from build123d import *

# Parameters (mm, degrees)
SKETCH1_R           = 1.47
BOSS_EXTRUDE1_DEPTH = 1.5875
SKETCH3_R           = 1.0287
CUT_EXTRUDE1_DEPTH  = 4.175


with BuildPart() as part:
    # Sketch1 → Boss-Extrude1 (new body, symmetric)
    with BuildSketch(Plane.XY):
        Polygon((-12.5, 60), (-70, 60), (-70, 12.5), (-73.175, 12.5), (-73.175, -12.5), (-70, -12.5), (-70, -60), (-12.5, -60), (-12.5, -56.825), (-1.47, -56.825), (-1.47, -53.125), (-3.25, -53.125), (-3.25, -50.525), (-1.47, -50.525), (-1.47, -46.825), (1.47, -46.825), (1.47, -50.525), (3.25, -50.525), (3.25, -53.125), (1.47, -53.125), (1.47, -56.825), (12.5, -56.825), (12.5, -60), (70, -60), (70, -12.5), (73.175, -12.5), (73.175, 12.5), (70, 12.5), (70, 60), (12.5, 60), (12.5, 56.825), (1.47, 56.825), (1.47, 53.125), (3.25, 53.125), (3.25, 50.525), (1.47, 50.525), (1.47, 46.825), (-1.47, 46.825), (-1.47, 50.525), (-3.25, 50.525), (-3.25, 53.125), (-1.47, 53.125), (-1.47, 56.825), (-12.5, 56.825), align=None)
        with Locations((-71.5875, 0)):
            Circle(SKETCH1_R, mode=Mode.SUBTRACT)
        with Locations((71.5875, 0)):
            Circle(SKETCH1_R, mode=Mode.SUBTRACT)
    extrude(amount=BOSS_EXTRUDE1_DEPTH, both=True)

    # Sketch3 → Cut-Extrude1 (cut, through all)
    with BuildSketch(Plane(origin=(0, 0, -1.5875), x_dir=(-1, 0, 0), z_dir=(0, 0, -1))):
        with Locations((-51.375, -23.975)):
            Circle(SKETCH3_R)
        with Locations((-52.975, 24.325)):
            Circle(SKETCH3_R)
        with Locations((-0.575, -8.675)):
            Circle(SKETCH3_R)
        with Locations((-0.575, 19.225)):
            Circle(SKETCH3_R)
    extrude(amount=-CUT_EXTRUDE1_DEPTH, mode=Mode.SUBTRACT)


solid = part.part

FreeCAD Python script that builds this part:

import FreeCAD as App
import Part
import Sketcher
from FreeCAD import Vector
Q = App.Units.Quantity


def add_polygon(sketch, points):
    """Adds a closed chain of lines whose ends are joined by coincident constraints."""
    first, n = sketch.GeometryCount, len(points)
    for a, b in zip(points, points[1:] + points[:1]):
        sketch.addGeometry(Part.LineSegment(App.Vector(*a, 0), App.Vector(*b, 0)), False)
    for i in range(n):
        sketch.addConstraint(Sketcher.Constraint("Coincident", first + i, 2, first + (i + 1) % n, 1))

doc = App.newDocument("Part")
body = doc.addObject("PartDesign::Body", "Body")

# Sketch on XY plane
sketch1 = body.newObject("Sketcher::SketchObject", "Sketch")
sketch1.AttachmentSupport = (doc.getObject("XY_Plane"), [""])
sketch1.MapMode = "FlatFace"
add_polygon(sketch1, [(-12.5, 60), (-70, 60), (-70, 12.5), (-73.175, 12.5), (-73.175, -12.5), (-70, -12.5), (-70, -60), (-12.5, -60), (-12.5, -56.825), (-1.47, -56.825), (-1.47, -53.125), (-3.25, -53.125), (-3.25, -50.525), (-1.47, -50.525), (-1.47, -46.825), (1.47, -46.825), (1.47, -50.525), (3.25, -50.525), (3.25, -53.125), (1.47, -53.125), (1.47, -56.825), (12.5, -56.825), (12.5, -60), (70, -60), (70, -12.5), (73.175, -12.5), (73.175, 12.5), (70, 12.5), (70, 60), (12.5, 60), (12.5, 56.825), (1.47, 56.825), (1.47, 53.125), (3.25, 53.125), (3.25, 50.525), (1.47, 50.525), (1.47, 46.825), (-1.47, 46.825), (-1.47, 50.525), (-3.25, 50.525), (-3.25, 53.125), (-1.47, 53.125), (-1.47, 56.825), (-12.5, 56.825)])  # lines 0-43
sketch1.addGeometry(Part.Circle(Vector(-71.5875, 0, 0), Vector(0, 0, 1), 1.47), False)  # 44
sketch1.addGeometry(Part.Circle(Vector(71.5875, 0, 0), Vector(0, 0, 1), 1.47), False)  # 45
sketch1.addConstraint([
    Sketcher.Constraint("Horizontal", 0),
    Sketcher.Constraint("Vertical", 1),
    Sketcher.Constraint("Horizontal", 2),
    Sketcher.Constraint("Vertical", 3),
    Sketcher.Constraint("Horizontal", 4),
    Sketcher.Constraint("Vertical", 5),
    Sketcher.Constraint("Horizontal", 6),
    Sketcher.Constraint("Vertical", 7),
    Sketcher.Constraint("Horizontal", 8),
    Sketcher.Constraint("Vertical", 9),
    Sketcher.Constraint("Horizontal", 10),
    Sketcher.Constraint("Vertical", 11),
    Sketcher.Constraint("Horizontal", 12),
    Sketcher.Constraint("Vertical", 13),
    Sketcher.Constraint("Horizontal", 14),
    Sketcher.Constraint("Vertical", 15),
    Sketcher.Constraint("Horizontal", 16),
    Sketcher.Constraint("Vertical", 17),
    Sketcher.Constraint("Horizontal", 18),
    Sketcher.Constraint("Vertical", 19),
    Sketcher.Constraint("Horizontal", 20),
    Sketcher.Constraint("Vertical", 21),
    Sketcher.Constraint("Horizontal", 22),
    Sketcher.Constraint("Vertical", 23),
    Sketcher.Constraint("Horizontal", 24),
    Sketcher.Constraint("Vertical", 25),
    Sketcher.Constraint("Horizontal", 26),
    Sketcher.Constraint("Vertical", 27),
    Sketcher.Constraint("Horizontal", 28),
    Sketcher.Constraint("Vertical", 29),
    Sketcher.Constraint("Horizontal", 30),
    Sketcher.Constraint("Vertical", 31),
    Sketcher.Constraint("Horizontal", 32),
    Sketcher.Constraint("Vertical", 33),
    Sketcher.Constraint("Horizontal", 34),
    Sketcher.Constraint("Vertical", 35),
    Sketcher.Constraint("Horizontal", 36),
    Sketcher.Constraint("Vertical", 37),
    Sketcher.Constraint("Horizontal", 38),
    Sketcher.Constraint("Vertical", 39),
    Sketcher.Constraint("Horizontal", 40),
    Sketcher.Constraint("Vertical", 41),
    Sketcher.Constraint("Horizontal", 42),
    Sketcher.Constraint("Vertical", 43),
    Sketcher.Constraint("Equal", 44, 45),
    Sketcher.Constraint("Symmetric", 44, 3, 45, 3, -1, 1),
    Sketcher.Constraint("Symmetric", 0, 2, 22, 2, -1, 1),
    Sketcher.Constraint("Symmetric", 2, 2, 24, 2, -1, 1),
    Sketcher.Constraint("Symmetric", 4, 2, 26, 2, -1, 1),
    Sketcher.Constraint("Symmetric", 6, 2, 28, 2, -1, 1),
    Sketcher.Constraint("Symmetric", 8, 2, 30, 2, -1, 1),
    Sketcher.Constraint("Symmetric", 10, 2, 32, 2, -1, 1),
    Sketcher.Constraint("Symmetric", 12, 2, 34, 2, -1, 1),
    Sketcher.Constraint("Symmetric", 14, 2, 36, 2, -1, 1),
    Sketcher.Constraint("Symmetric", 16, 2, 38, 2, -1, 1),
    Sketcher.Constraint("Symmetric", 18, 2, 40, 2, -1, 1),
    Sketcher.Constraint("Symmetric", 20, 2, 42, 2, -1, 1),
    Sketcher.Constraint("Symmetric", 12, 2, 15, 2, -2),
    Sketcher.Constraint("Symmetric", 10, 2, 17, 2, -2),
    Sketcher.Constraint("Symmetric", 8, 2, 19, 2, -2),
    Sketcher.Constraint("Symmetric", 6, 2, 21, 2, -2),
    Sketcher.Constraint("Symmetric", 4, 2, 23, 2, -2),
    Sketcher.Constraint("PointOnObject", 44, 3, -1),
    Sketcher.Constraint("Vertical", 9, 2, 12, 2),
    Sketcher.Constraint("Equal", 26, 7),
    Sketcher.Constraint("Equal", 9, 13),
    Sketcher.Constraint("Diameter", 44, Q("2.94 mm")),
    Sketcher.Constraint("DistanceY", 3, 2, 3, 1, Q("25 mm")),
    Sketcher.Constraint("DistanceX", 0, 2, 0, 1, Q("57.5 mm")),
    Sketcher.Constraint("DistanceY", 1, 2, 1, 1, Q("47.5 mm")),
    Sketcher.Constraint("DistanceY", 9, 1, 9, 2, Q("3.7 mm")),
    Sketcher.Constraint("DistanceY", 11, 1, 11, 2, Q("2.6 mm")),
    Sketcher.Constraint("DistanceX", 0, 2, -1, 1, Q("70 mm")),
    Sketcher.Constraint("DistanceX", 8, 1, 8, 2, Q("11.03 mm")),
    Sketcher.Constraint("DistanceX", 10, 2, 10, 1, Q("1.78 mm")),
    Sketcher.Constraint("DistanceX", 2, 2, 2, 1, Q("3.175 mm")),
    Sketcher.Constraint("DistanceX", 44, 3, 45, 3, Q("143.175 mm")),
])
pad1 = body.newObject("PartDesign::Pad", "Pad")
pad1.Profile = sketch1
pad1.Length = 3.175
pad1.Midplane = True

# Sketch on XY plane
sketch2 = body.newObject("Sketcher::SketchObject", "Sketch001")
sketch2.AttachmentSupport = (doc.getObject("XY_Plane"), [""])
sketch2.MapMode = "FlatFace"
sketch2.AttachmentOffset = App.Placement(Vector(0, 0, -1.5875), App.Rotation())
sketch2.addGeometry([
    Part.Circle(Vector(51.375, -23.975, 0), Vector(0, 0, 1), 1.0287),
    Part.Circle(Vector(52.975, 24.325, 0), Vector(0, 0, 1), 1.0287),
    Part.Circle(Vector(0.575, -8.675, 0), Vector(0, 0, 1), 1.0287),
    Part.Circle(Vector(0.575, 19.225, 0), Vector(0, 0, 1), 1.0287),
], False)
sketch2.addConstraint([
    Sketcher.Constraint("Equal", 0, 1),
    Sketcher.Constraint("Equal", 1, 2),
    Sketcher.Constraint("Equal", 2, 3),
    Sketcher.Constraint("Vertical", 2, 3, 3, 3),
    Sketcher.Constraint("DistanceY", 2, 3, 1, 3, Q("33 mm")),
    Sketcher.Constraint("Diameter", 0, Q("2.0574 mm")),
    Sketcher.Constraint("DistanceX", 0, 3, 1, 3, Q("1.6 mm")),
    Sketcher.Constraint("DistanceY", 0, 3, 1, 3, Q("48.3 mm")),
    Sketcher.Constraint("DistanceX", 2, 3, 0, 3, Q("50.8 mm")),
    Sketcher.Constraint("DistanceY", 2, 3, 3, 3, Q("27.9 mm")),
    Sketcher.Constraint("DistanceX", -1, 1, 0, 3, Q("51.375 mm")),
    Sketcher.Constraint("DistanceY", 0, 3, -1, 1, Q("23.975 mm")),
])
pocket1 = body.newObject("PartDesign::Pocket", "Pocket")
pocket1.Profile = sketch2
pocket1.Type = "ThroughAll"
pocket1.Reversed = True

doc.recompute()
